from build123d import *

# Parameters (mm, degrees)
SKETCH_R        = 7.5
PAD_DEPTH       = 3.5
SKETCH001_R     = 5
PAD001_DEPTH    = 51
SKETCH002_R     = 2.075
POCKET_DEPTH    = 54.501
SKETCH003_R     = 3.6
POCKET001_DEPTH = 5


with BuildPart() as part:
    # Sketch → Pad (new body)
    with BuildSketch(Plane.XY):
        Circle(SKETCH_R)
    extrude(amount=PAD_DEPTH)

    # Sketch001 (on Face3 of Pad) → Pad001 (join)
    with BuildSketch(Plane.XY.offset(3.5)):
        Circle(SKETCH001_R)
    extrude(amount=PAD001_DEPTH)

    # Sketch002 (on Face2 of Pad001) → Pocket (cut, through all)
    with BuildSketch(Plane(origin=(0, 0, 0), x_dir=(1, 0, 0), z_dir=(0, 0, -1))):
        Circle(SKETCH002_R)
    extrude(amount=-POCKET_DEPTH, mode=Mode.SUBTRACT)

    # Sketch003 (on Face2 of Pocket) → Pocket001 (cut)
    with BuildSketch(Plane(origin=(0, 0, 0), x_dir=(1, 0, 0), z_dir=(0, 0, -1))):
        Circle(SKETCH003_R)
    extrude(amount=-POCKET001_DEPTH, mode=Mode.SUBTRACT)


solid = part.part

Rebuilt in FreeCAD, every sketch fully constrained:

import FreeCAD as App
import Part
import Sketcher

doc = App.newDocument("Part")
body = doc.addObject("PartDesign::Body", "Body")

# Sketch on XY plane
sketch1 = body.newObject("Sketcher::SketchObject", "Sketch")
sketch1.AttachmentSupport = (doc.getObject("XY_Plane"), [""])
sketch1.MapMode = "FlatFace"
sketch1.addGeometry(Part.Circle(App.Vector(0, 0, 0), App.Vector(0, 0, 1), 7.5), False)
sketch1.addConstraint([
    Sketcher.Constraint("Coincident", 0, 3, -1, 1),
    Sketcher.Constraint("Diameter", 0, 15.0),
])
pad1 = body.newObject("PartDesign::Pad", "Pad")
pad1.Profile = sketch1
pad1.Length = 3.5

# Sketch on XY plane
sketch2 = body.newObject("Sketcher::SketchObject", "Sketch001")
sketch2.AttachmentSupport = (doc.getObject("XY_Plane"), [""])
sketch2.MapMode = "FlatFace"
sketch2.AttachmentOffset = App.Placement(App.Vector(0, 0, 3.5), App.Rotation())
sketch2.addGeometry(Part.Circle(App.Vector(0, 0, 0), App.Vector(0, 0, 1), 5), False)
sketch2.addConstraint([
    Sketcher.Constraint("Coincident", 0, 3, -1, 1),
    Sketcher.Constraint("Diameter", 0, 10.0),
])
pad2 = body.newObject("PartDesign::Pad", "Pad001")
pad2.Profile = sketch2
pad2.Length = 51

# Sketch on XY plane
sketch3 = body.newObject("Sketcher::SketchObject", "Sketch002")
sketch3.AttachmentSupport = (doc.getObject("XY_Plane"), [""])
sketch3.MapMode = "FlatFace"
sketch3.addGeometry(Part.Circle(App.Vector(0, 0, 0), App.Vector(0, 0, 1), 2.075), False)
sketch3.addConstraint([
    Sketcher.Constraint("Coincident", 0, 3, -1, 1),
    Sketcher.Constraint("Diameter", 0, 4.15),
])
pocket1 = body.newObject("PartDesign::Pocket", "Pocket")
pocket1.Profile = sketch3
pocket1.Type = "ThroughAll"
pocket1.Reversed = True

# Sketch on XY plane
sketch4 = body.newObject("Sketcher::SketchObject", "Sketch003")
sketch4.AttachmentSupport = (doc.getObject("XY_Plane"), [""])
sketch4.MapMode = "FlatFace"
sketch4.addGeometry(Part.Circle(App.Vector(0, 0, 0), App.Vector(0, 0, 1), 3.6), False)
sketch4.addConstraint([
    Sketcher.Constraint("Coincident", 0, 3, -1, 1),
    Sketcher.Constraint("Diameter", 0, 7.2),
])
pocket2 = body.newObject("PartDesign::Pocket", "Pocket001")
pocket2.Profile = sketch4
pocket2.Length = 5
pocket2.Reversed = True

doc.recompute()
